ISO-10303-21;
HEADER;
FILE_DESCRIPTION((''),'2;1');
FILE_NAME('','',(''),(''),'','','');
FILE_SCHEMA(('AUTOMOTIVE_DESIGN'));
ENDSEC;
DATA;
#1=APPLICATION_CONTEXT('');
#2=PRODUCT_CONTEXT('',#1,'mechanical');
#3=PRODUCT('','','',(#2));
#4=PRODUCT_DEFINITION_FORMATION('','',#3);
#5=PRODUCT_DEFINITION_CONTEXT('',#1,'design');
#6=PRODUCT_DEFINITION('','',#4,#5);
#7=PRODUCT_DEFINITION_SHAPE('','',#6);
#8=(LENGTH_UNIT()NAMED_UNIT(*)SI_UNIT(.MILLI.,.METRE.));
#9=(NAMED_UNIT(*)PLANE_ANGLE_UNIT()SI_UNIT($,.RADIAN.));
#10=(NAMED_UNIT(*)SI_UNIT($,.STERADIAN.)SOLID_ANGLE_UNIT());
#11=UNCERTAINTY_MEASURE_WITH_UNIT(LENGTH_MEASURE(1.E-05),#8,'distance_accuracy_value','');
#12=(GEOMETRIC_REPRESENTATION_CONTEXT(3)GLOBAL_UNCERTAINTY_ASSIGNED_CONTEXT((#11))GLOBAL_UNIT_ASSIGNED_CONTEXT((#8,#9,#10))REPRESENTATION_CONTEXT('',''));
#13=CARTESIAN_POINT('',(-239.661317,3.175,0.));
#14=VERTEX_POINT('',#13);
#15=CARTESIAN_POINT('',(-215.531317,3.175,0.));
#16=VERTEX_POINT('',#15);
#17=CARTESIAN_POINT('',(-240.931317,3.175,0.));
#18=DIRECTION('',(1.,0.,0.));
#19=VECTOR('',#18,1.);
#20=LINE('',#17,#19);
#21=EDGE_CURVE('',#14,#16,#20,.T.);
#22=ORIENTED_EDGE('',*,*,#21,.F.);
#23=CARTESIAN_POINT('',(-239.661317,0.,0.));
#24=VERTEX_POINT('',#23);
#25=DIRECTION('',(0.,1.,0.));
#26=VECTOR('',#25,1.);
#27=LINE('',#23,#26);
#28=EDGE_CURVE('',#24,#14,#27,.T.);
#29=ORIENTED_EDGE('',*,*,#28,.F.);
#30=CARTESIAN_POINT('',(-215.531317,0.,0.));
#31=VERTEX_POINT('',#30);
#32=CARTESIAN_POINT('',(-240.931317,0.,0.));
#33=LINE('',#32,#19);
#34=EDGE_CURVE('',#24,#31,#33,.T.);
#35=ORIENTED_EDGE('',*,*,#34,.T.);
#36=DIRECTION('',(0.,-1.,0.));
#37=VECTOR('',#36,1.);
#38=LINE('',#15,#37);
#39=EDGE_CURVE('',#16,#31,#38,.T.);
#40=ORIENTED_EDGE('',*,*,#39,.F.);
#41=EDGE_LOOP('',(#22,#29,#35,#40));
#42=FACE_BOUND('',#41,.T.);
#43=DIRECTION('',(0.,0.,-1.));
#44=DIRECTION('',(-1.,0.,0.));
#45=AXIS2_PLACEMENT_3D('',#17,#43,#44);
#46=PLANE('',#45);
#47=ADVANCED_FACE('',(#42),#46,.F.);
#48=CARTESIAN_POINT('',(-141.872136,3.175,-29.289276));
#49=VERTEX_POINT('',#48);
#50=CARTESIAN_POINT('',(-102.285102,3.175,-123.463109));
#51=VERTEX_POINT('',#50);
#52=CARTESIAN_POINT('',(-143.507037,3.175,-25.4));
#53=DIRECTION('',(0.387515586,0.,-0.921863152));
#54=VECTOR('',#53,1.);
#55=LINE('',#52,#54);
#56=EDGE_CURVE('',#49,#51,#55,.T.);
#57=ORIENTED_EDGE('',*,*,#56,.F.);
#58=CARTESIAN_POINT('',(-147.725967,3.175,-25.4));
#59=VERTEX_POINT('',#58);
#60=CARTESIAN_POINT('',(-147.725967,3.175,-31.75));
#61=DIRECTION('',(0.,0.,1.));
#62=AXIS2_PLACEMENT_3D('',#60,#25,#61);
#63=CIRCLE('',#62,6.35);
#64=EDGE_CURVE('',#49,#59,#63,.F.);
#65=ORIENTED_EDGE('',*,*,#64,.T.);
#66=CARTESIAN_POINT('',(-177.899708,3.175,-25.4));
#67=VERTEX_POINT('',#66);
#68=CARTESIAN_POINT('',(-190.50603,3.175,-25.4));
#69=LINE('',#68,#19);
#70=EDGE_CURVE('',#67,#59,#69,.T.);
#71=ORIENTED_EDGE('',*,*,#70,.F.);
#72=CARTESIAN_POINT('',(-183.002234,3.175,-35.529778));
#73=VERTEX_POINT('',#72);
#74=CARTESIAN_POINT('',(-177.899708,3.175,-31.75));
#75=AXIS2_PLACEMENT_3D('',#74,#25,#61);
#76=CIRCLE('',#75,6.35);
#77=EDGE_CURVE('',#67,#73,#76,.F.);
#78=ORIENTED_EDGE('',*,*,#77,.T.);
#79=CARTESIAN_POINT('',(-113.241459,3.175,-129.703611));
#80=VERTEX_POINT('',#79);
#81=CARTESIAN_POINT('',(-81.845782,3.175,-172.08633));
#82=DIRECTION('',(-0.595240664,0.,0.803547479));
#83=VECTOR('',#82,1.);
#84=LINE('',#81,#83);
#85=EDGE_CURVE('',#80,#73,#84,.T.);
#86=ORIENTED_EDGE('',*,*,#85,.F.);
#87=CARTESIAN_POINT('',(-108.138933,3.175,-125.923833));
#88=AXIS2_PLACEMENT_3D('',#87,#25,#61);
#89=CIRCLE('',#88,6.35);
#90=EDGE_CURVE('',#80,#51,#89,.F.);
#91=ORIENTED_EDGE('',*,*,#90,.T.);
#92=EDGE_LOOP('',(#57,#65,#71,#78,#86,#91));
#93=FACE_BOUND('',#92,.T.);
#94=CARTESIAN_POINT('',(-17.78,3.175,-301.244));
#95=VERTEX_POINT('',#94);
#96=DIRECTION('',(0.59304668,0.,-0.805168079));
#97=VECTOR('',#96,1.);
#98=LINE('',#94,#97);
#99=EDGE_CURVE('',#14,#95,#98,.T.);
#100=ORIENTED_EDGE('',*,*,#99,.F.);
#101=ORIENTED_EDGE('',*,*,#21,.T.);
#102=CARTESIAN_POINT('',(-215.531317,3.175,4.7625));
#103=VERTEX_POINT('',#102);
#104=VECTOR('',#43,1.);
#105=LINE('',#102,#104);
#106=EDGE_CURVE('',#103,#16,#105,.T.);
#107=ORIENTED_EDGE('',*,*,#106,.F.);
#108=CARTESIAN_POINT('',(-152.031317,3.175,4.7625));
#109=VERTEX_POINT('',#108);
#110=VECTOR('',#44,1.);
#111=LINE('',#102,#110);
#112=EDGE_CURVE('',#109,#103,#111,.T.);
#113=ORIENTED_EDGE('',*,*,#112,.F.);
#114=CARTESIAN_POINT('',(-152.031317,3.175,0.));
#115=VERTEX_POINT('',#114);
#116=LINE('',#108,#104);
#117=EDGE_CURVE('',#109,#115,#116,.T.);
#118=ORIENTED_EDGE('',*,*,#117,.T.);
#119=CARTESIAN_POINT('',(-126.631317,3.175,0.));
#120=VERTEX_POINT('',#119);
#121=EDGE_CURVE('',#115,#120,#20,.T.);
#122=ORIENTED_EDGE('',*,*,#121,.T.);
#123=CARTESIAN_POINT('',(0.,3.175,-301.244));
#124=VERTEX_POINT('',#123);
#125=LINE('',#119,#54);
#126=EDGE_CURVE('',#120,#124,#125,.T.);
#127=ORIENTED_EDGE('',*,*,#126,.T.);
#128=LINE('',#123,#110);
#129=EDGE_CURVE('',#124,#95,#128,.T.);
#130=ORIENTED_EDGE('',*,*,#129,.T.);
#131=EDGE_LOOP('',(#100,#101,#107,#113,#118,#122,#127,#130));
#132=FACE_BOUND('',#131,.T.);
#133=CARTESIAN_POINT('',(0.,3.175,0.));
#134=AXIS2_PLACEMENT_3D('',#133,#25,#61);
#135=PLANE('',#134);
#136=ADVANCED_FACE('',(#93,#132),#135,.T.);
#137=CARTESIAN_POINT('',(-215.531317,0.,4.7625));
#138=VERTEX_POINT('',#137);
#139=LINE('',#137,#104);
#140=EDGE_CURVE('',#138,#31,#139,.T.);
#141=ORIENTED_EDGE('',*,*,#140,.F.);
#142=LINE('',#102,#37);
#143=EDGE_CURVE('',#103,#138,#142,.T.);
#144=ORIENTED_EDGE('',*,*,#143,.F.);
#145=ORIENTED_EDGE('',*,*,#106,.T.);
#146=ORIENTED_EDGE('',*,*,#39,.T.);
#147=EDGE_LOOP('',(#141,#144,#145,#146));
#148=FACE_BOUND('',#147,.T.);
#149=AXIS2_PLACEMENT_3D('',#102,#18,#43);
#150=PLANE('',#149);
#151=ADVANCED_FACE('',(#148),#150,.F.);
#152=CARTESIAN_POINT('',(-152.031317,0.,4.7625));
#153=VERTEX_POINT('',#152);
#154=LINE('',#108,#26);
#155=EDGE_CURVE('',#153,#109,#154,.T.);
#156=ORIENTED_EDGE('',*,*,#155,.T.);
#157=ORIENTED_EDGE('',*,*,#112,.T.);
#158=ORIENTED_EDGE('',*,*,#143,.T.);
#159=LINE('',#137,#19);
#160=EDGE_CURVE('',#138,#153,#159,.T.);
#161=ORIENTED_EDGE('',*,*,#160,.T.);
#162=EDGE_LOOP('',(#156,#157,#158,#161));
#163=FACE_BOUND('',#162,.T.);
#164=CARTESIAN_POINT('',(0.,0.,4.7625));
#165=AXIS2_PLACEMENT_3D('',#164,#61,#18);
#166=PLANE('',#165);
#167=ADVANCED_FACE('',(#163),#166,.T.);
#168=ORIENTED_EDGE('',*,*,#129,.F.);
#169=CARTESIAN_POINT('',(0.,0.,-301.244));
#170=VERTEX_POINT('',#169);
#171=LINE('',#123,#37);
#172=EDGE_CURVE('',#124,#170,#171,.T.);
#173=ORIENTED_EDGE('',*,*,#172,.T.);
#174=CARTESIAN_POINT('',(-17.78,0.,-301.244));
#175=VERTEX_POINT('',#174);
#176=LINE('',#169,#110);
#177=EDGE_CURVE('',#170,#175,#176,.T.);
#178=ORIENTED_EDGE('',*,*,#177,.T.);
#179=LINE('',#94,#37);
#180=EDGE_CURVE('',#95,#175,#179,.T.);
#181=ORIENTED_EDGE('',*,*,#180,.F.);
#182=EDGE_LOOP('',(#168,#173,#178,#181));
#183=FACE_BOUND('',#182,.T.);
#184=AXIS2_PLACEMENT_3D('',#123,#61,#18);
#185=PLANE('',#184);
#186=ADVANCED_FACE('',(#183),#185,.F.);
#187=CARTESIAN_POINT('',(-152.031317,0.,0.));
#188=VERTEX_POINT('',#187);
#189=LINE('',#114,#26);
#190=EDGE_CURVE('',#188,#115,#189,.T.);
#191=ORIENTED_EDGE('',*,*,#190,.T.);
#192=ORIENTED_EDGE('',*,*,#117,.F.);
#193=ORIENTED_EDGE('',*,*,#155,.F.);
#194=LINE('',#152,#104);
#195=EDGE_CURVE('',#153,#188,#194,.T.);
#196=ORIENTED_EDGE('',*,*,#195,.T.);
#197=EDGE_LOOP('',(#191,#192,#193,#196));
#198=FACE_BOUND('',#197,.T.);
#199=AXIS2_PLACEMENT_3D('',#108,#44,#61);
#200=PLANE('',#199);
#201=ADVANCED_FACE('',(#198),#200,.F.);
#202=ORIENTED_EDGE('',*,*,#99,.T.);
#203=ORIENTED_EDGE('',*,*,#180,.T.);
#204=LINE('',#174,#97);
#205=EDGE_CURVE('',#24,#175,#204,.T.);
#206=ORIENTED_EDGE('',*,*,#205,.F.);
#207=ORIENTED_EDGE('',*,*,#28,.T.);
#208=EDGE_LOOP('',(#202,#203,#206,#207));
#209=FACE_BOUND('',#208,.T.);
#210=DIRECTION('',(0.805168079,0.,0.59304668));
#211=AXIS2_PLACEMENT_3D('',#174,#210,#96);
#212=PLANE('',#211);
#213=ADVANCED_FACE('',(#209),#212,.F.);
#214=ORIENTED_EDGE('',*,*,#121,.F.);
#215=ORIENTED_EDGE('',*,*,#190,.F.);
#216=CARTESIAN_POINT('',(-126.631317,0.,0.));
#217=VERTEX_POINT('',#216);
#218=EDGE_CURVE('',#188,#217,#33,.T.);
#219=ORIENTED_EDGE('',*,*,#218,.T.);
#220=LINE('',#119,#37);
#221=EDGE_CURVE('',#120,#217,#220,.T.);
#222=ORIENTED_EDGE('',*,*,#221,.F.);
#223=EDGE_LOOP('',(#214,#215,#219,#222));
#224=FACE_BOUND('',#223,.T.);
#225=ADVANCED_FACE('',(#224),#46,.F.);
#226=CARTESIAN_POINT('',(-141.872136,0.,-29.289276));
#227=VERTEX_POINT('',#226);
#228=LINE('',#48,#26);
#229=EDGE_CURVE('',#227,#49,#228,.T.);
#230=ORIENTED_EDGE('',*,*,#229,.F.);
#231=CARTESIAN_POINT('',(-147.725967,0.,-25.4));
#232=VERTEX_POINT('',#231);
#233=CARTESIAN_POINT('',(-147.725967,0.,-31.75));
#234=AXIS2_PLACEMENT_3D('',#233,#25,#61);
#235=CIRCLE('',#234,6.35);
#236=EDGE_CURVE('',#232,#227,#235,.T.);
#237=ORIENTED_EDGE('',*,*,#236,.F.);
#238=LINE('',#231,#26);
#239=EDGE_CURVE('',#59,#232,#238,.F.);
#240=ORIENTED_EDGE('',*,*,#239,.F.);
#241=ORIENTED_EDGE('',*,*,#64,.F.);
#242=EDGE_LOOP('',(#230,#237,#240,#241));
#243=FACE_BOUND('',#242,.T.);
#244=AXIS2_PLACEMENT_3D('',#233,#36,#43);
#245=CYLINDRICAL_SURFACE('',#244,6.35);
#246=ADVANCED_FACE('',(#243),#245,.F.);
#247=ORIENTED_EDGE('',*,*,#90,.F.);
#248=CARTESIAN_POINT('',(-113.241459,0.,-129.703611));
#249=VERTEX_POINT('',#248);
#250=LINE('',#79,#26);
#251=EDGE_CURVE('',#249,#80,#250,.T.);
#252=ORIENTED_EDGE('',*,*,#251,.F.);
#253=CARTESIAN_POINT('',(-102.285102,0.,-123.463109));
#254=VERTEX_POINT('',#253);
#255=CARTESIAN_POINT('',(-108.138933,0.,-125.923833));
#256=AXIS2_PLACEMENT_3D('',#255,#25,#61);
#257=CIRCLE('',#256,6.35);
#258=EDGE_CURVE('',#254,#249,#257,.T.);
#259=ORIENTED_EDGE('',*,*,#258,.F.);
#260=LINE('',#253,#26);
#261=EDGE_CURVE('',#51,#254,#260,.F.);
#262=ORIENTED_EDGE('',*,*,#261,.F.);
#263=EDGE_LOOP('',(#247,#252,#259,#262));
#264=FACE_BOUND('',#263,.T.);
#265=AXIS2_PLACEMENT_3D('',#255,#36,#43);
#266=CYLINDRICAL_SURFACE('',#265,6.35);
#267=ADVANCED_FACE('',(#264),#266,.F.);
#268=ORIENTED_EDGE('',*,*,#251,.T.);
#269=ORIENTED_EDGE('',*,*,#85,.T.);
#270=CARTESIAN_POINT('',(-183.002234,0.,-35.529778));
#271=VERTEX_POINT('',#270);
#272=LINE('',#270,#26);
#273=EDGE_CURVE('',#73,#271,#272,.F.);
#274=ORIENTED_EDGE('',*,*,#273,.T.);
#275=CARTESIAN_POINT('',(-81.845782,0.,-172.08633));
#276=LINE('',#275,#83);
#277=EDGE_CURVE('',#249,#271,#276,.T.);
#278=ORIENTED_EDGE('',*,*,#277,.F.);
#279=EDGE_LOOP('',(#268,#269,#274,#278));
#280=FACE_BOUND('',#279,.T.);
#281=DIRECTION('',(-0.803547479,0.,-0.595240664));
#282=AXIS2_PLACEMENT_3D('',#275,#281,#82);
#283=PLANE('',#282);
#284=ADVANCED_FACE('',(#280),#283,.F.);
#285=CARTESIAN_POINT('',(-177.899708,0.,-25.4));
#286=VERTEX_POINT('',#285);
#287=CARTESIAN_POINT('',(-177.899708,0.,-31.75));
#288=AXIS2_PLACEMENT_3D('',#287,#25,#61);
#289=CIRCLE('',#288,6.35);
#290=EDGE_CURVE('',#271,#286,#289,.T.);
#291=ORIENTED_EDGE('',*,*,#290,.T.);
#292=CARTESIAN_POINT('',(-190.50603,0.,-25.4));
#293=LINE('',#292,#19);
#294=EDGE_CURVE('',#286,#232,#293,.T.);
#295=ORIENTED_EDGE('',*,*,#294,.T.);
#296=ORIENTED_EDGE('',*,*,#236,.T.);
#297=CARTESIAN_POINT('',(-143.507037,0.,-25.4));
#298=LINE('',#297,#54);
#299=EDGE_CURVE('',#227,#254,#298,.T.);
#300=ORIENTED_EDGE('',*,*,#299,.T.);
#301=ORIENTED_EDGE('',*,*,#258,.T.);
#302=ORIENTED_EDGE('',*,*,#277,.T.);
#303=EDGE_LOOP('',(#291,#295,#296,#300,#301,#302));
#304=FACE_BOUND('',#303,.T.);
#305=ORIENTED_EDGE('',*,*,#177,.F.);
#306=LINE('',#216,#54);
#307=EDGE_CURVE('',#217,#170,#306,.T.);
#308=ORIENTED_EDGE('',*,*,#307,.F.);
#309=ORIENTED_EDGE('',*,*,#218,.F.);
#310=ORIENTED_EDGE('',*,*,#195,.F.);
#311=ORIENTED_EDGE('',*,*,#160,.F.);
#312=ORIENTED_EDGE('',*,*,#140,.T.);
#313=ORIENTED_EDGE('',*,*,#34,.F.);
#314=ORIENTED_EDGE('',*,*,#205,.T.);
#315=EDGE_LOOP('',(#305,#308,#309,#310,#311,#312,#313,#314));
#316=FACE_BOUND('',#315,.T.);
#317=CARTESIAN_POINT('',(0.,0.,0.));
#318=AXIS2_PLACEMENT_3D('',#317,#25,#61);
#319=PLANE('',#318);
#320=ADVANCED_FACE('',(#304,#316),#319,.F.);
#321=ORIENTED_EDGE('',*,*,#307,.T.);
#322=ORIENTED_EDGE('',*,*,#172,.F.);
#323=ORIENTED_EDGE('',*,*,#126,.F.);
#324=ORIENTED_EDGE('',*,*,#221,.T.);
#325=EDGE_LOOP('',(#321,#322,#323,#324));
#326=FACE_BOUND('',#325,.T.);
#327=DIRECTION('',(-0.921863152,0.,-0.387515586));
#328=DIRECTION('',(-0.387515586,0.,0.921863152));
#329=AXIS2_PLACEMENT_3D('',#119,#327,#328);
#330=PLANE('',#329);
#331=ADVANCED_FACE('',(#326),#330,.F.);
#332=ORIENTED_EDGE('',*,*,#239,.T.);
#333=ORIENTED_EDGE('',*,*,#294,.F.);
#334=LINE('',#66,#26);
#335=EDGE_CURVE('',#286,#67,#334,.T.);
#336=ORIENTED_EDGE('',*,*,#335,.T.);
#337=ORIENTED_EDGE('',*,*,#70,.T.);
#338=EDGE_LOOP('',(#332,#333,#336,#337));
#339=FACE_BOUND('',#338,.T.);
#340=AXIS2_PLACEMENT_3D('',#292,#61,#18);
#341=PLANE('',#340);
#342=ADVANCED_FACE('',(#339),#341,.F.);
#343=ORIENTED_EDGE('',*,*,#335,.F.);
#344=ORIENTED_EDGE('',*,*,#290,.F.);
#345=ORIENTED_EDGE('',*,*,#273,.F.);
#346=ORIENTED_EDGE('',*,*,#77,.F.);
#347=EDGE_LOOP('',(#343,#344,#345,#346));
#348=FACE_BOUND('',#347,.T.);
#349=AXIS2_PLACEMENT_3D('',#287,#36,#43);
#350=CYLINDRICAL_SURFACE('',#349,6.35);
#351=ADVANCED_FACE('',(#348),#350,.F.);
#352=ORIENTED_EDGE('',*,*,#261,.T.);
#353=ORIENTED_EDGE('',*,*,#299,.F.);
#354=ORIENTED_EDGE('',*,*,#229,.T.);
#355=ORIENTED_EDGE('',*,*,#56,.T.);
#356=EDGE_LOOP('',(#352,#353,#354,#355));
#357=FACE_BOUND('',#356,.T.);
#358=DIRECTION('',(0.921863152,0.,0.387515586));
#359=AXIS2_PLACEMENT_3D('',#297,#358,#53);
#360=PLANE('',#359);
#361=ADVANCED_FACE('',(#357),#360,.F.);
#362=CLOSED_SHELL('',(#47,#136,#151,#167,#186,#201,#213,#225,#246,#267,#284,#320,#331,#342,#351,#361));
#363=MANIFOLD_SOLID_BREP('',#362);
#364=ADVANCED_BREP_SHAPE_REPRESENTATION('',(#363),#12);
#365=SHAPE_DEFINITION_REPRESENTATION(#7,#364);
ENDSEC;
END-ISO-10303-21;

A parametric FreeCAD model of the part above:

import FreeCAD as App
import Part
import Sketcher
Q = App.Units.Quantity


def edges_at(feature, points):
    """Names of the edges that pass closest to the given points."""
    edges = feature.Shape.Edges
    near = lambda p: min(range(len(edges)), key=lambda i: edges[i].distToShape(Part.Vertex(*p))[0])
    return sorted({f"Edge{near(p) + 1}" for p in points})


def add_polygon(sketch, points):
    """Adds a closed chain of lines whose ends are joined by coincident constraints."""
    first, n = sketch.GeometryCount, len(points)
    for a, b in zip(points, points[1:] + points[:1]):
        sketch.addGeometry(Part.LineSegment(App.Vector(*a, 0), App.Vector(*b, 0)), False)
    for i in range(n):
        sketch.addConstraint(Sketcher.Constraint("Coincident", first + i, 2, first + (i + 1) % n, 1))

doc = App.newDocument("Part")
body = doc.addObject("PartDesign::Body", "Body")

# Sketch on XZ plane
sketch1 = body.newObject("Sketcher::SketchObject", "Sketch")
sketch1.AttachmentSupport = (doc.getObject("XZ_Plane"), [""])
sketch1.MapMode = "FlatFace"
add_polygon(sketch1, [(0, -301), (-18, -301), (-241, 0), (-127, 0)])  # lines 0-3
sketch1.addConstraint(Sketcher.Constraint("Horizontal", 0))
sketch1.addConstraint(Sketcher.Constraint("Horizontal", 2))
sketch1.addConstraint(Sketcher.Constraint("PointOnObject", 1, 2, -1))
sketch1.addConstraint(Sketcher.Constraint("PointOnObject", 3, 2, -2))
sketch1.addConstraint(Sketcher.Constraint("DistanceX", 0, 2, 0, 1, Q("0.7 in")))
sketch1.addConstraint(Sketcher.Constraint("DistanceX", 2, 1, 2, 2, Q("4.5 in")))
sketch1.addConstraint(Sketcher.Constraint("Angle", 3, Q("-67.2 deg")))
sketch1.addConstraint(Sketcher.Constraint("DistanceY", 0, 2, -1, 1, Q("11.86 in")))
pad1 = body.newObject("PartDesign::Pad", "Pad")
pad1.Profile = sketch1
pad1.Length = Q("0.125 in")
pad1.Reversed = True

# Sketch on XZ plane
sketch2 = body.newObject("Sketcher::SketchObject", "Sketch001")
sketch2.AttachmentSupport = (doc.getObject("XZ_Plane"), [""])
sketch2.MapMode = "FlatFace"
sketch2.AttachmentOffset = App.Placement(App.Vector(0, 0, -0.125 * 25.4), App.Rotation())
add_polygon(sketch2, [(-144, -25), (-82, -172), (-191, -25)])  # lines 0-2
sketch2.addConstraint(Sketcher.Constraint("Horizontal", 2))
sketch2.addConstraint(Sketcher.Constraint("DistanceY", 1, 2, -1, 1, Q("1 in")))
sketch2.addConstraint(Sketcher.Constraint("Angle", 0, Q("-67.2 deg")))
sketch2.addConstraint(Sketcher.Constraint("Distance", 0, 159.11942))
sketch2.addConstraint(Sketcher.Constraint("Distance", 1, 182.548428))
sketch2.addConstraint(Sketcher.Constraint("DistanceX", 0, 2, -1, 1, 81.845782))
pocket1 = body.newObject("PartDesign::Pocket", "Pocket")
pocket1.Profile = sketch2
pocket1.Length = Q("0.125 in")
pocket1.Reversed = True
doc.recompute()

fillet = body.newObject("PartDesign::Fillet", "Fillet")
fillet.Base = (pocket1, edges_at(pocket1, [(-143.507, 1.587, -25.4), (-190.506, 1.587, -25.4), (-81.846, 1.587, -172.086)]))
fillet.Radius = Q("0.25 in")

# Sketch on XY plane
sketch3 = body.newObject("Sketcher::SketchObject", "Sketch002")
sketch3.AttachmentSupport = (doc.getObject("XY_Plane"), [""])
sketch3.MapMode = "FlatFace"
add_polygon(sketch3, [(-215.5, 3.2), (-215.5, 0), (-152, 0), (-152, 3.2)])  # lines 0-3
sketch3.addConstraint(Sketcher.Constraint("Vertical", 0))
sketch3.addConstraint(Sketcher.Constraint("Horizontal", 1))
sketch3.addConstraint(Sketcher.Constraint("Vertical", 2))
sketch3.addConstraint(Sketcher.Constraint("Horizontal", 3))
sketch3.addConstraint(Sketcher.Constraint("PointOnObject", 0, 2, -1))
sketch3.addConstraint(Sketcher.Constraint("DistanceX", 1, 1, 1, 2, Q("2.5 in")))
sketch3.addConstraint(Sketcher.Constraint("DistanceY", 0, 2, 0, 1, Q("0.125 in")))
sketch3.addConstraint(Sketcher.Constraint("DistanceX", 0, 2, -1, 1, 215.531317))
pad2 = body.newObject("PartDesign::Pad", "Pad001")
pad2.Profile = sketch3
pad2.Length = Q("0.1875 in")

# Sketch on XZ plane
sketch4 = body.newObject("Sketcher::SketchObject", "Sketch003")
sketch4.AttachmentSupport = (doc.getObject("XZ_Plane"), [""])
sketch4.MapMode = "FlatFace"
sketch4.AttachmentOffset = App.Placement(App.Vector(0, 0, -0.125 * 25.4), App.Rotation())
add_polygon(sketch4, [(-239.7, 0), (-17.8, -301.2), (-240.9, 0)])  # lines 0-2
sketch4.addConstraint(Sketcher.Constraint("Horizontal", 2))
sketch4.addConstraint(Sketcher.Constraint("PointOnObject", 1, 2, -1))
sketch4.addConstraint(Sketcher.Constraint("DistanceX", 2, 1, 2, 2, Q("0.05 in")))
sketch4.addConstraint(Sketcher.Constraint("DistanceX", 0, 2, -1, 1, Q("0.7 in")))
sketch4.addConstraint(Sketcher.Constraint("DistanceY", 0, 2, -1, 1, Q("11.86 in")))
sketch4.addConstraint(Sketcher.Constraint("Distance", 0, 374.138031))
pocket2 = body.newObject("PartDesign::Pocket", "Pocket001")
pocket2.Profile = sketch4
pocket2.Type = "ThroughAll"
pocket2.Reversed = True

doc.recompute()
